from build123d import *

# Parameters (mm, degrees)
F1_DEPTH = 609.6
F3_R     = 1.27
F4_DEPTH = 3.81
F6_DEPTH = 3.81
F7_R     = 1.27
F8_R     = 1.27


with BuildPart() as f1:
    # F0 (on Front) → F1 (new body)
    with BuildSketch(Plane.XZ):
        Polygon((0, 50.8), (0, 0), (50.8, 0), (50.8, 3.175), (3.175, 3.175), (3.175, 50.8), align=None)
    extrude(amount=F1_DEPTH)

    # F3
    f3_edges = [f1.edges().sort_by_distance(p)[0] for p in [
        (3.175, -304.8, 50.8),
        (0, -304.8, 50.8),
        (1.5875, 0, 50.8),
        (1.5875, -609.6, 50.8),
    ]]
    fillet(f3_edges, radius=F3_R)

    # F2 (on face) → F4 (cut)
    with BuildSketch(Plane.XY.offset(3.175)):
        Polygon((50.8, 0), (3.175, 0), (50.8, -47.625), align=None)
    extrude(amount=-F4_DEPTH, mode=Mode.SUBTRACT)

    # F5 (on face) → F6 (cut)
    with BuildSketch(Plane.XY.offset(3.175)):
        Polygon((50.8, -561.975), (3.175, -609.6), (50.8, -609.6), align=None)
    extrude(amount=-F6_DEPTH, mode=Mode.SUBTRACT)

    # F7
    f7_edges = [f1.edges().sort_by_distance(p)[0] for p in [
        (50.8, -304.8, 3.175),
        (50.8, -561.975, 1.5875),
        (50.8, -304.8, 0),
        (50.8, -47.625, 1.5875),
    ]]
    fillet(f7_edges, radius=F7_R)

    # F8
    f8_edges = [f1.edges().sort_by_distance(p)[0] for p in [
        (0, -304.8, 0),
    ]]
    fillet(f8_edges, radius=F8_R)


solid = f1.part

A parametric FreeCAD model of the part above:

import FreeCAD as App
import Part
import Sketcher

V = App.Vector
Q = App.Units.Quantity


def edges_at(feature, points):
    """Names of the edges that pass closest to the given points."""
    edges = feature.Shape.Edges
    near = lambda p: min(range(len(edges)), key=lambda i: edges[i].distToShape(Part.Vertex(*p))[0])
    return sorted({f"Edge{near(p) + 1}" for p in points})


def add_polygon(sketch, points):
    """Adds a closed chain of lines whose ends are joined by coincident constraints."""
    first, n = sketch.GeometryCount, len(points)
    for a, b in zip(points, points[1:] + points[:1]):
        sketch.addGeometry(Part.LineSegment(App.Vector(*a, 0), App.Vector(*b, 0)), False)
    for i in range(n):
        sketch.addConstraint(Sketcher.Constraint("Coincident", first + i, 2, first + (i + 1) % n, 1))

doc = App.newDocument("Part")
body = doc.addObject("PartDesign::Body", "Body")

sketch1 = body.newObject("Sketcher::SketchObject", "Sketch")
sketch1.AttachmentSupport = (doc.getObject("XZ_Plane"), [""])
sketch1.MapMode = "FlatFace"
add_polygon(sketch1, [(0, 50.8), (0, 0), (50.8, 0), (50.8, 3.175), (3.175, 3.175), (3.175, 50.8)])
sketch1.addConstraint([
    Sketcher.Constraint("Vertical", 0),
    Sketcher.Constraint("Horizontal", 1),
    Sketcher.Constraint("Vertical", 2),
    Sketcher.Constraint("Horizontal", 3),
    Sketcher.Constraint("Vertical", 4),
    Sketcher.Constraint("Horizontal", 5),
    Sketcher.Constraint("Coincident", 0, 2, -1, 1),
    Sketcher.Constraint("Equal", 1, 0),
    Sketcher.Constraint("Equal", 5, 2),
    Sketcher.Constraint("DistanceX", 1, 1, 1, 2, Q("2 in")),
    Sketcher.Constraint("DistanceX", 3, 2, 3, 1, Q("1.875 in")),
])
pad1 = body.newObject("PartDesign::Pad", "Pad")
pad1.Profile = sketch1
pad1.Length = Q("24 in")
doc.recompute()

fillet = body.newObject("PartDesign::Fillet", "Fillet")
fillet.Base = (pad1, edges_at(pad1, [
    (3.175, -304.8, 50.8),
    (0, -304.8, 50.8),
    (1.587, 0, 50.8),
    (1.587, -609.6, 50.8),
]))
fillet.Radius = Q("0.05 in")

sketch2 = body.newObject("Sketcher::SketchObject", "Sketch001")
sketch2.AttachmentSupport = (doc.getObject("XY_Plane"), [""])
sketch2.MapMode = "FlatFace"
sketch2.AttachmentOffset = App.Placement(V(0, 0, 0.125 * 25.4), App.Rotation())
add_polygon(sketch2, [(50.8, 0), (3.175, 0), (50.8, -47.625)])
sketch2.addConstraint([
    Sketcher.Constraint("Horizontal", 0),
    Sketcher.Constraint("Vertical", 2),
    Sketcher.Constraint("PointOnObject", 0, 2, -1),
    Sketcher.Constraint("Equal", 0, 2),
    Sketcher.Constraint("DistanceX", -1, 1, 1, 2, Q("2 in")),
    Sketcher.Constraint("DistanceX", 0, 2, 0, 1, Q("1.875 in")),
])
pocket1 = body.newObject("PartDesign::Pocket", "Pocket")
pocket1.Profile = sketch2
pocket1.Length = Q("0.15 in")

sketch3 = body.newObject("Sketcher::SketchObject", "Sketch002")
sketch3.AttachmentSupport = (doc.getObject("XY_Plane"), [""])
sketch3.MapMode = "FlatFace"
sketch3.AttachmentOffset = App.Placement(V(0, 0, 0.125 * 25.4), App.Rotation())
add_polygon(sketch3, [(50.8, -561.975), (3.175, -609.6), (50.8, -609.6)])
sketch3.addConstraint([
    Sketcher.Constraint("Horizontal", 1),
    Sketcher.Constraint("Vertical", 2),
    Sketcher.Constraint("Equal", 1, 2),
    Sketcher.Constraint("DistanceY", 0, 2, -1, 1, Q("24 in")),
    Sketcher.Constraint("DistanceX", -1, 1, 1, 2, Q("2 in")),
    Sketcher.Constraint("DistanceX", 1, 1, 1, 2, Q("1.875 in")),
])
pocket2 = body.newObject("PartDesign::Pocket", "Pocket001")
pocket2.Profile = sketch3
pocket2.Length = Q("0.15 in")
doc.recompute()

fillet2 = body.newObject("PartDesign::Fillet", "Fillet001")
fillet2.Base = (pocket2, edges_at(pocket2, [
    (50.8, -304.8, 3.175),
    (50.8, -561.975, 1.587),
    (50.8, -304.8, 0),
    (50.8, -47.625, 1.587),
]))
fillet2.Radius = Q("0.05 in")
doc.recompute()

fillet3 = body.newObject("PartDesign::Fillet", "Fillet002")
fillet3.Base = (fillet2, edges_at(fillet2, [(0, -304.8, 0)]))
fillet3.Radius = Q("0.05 in")

doc.recompute()
